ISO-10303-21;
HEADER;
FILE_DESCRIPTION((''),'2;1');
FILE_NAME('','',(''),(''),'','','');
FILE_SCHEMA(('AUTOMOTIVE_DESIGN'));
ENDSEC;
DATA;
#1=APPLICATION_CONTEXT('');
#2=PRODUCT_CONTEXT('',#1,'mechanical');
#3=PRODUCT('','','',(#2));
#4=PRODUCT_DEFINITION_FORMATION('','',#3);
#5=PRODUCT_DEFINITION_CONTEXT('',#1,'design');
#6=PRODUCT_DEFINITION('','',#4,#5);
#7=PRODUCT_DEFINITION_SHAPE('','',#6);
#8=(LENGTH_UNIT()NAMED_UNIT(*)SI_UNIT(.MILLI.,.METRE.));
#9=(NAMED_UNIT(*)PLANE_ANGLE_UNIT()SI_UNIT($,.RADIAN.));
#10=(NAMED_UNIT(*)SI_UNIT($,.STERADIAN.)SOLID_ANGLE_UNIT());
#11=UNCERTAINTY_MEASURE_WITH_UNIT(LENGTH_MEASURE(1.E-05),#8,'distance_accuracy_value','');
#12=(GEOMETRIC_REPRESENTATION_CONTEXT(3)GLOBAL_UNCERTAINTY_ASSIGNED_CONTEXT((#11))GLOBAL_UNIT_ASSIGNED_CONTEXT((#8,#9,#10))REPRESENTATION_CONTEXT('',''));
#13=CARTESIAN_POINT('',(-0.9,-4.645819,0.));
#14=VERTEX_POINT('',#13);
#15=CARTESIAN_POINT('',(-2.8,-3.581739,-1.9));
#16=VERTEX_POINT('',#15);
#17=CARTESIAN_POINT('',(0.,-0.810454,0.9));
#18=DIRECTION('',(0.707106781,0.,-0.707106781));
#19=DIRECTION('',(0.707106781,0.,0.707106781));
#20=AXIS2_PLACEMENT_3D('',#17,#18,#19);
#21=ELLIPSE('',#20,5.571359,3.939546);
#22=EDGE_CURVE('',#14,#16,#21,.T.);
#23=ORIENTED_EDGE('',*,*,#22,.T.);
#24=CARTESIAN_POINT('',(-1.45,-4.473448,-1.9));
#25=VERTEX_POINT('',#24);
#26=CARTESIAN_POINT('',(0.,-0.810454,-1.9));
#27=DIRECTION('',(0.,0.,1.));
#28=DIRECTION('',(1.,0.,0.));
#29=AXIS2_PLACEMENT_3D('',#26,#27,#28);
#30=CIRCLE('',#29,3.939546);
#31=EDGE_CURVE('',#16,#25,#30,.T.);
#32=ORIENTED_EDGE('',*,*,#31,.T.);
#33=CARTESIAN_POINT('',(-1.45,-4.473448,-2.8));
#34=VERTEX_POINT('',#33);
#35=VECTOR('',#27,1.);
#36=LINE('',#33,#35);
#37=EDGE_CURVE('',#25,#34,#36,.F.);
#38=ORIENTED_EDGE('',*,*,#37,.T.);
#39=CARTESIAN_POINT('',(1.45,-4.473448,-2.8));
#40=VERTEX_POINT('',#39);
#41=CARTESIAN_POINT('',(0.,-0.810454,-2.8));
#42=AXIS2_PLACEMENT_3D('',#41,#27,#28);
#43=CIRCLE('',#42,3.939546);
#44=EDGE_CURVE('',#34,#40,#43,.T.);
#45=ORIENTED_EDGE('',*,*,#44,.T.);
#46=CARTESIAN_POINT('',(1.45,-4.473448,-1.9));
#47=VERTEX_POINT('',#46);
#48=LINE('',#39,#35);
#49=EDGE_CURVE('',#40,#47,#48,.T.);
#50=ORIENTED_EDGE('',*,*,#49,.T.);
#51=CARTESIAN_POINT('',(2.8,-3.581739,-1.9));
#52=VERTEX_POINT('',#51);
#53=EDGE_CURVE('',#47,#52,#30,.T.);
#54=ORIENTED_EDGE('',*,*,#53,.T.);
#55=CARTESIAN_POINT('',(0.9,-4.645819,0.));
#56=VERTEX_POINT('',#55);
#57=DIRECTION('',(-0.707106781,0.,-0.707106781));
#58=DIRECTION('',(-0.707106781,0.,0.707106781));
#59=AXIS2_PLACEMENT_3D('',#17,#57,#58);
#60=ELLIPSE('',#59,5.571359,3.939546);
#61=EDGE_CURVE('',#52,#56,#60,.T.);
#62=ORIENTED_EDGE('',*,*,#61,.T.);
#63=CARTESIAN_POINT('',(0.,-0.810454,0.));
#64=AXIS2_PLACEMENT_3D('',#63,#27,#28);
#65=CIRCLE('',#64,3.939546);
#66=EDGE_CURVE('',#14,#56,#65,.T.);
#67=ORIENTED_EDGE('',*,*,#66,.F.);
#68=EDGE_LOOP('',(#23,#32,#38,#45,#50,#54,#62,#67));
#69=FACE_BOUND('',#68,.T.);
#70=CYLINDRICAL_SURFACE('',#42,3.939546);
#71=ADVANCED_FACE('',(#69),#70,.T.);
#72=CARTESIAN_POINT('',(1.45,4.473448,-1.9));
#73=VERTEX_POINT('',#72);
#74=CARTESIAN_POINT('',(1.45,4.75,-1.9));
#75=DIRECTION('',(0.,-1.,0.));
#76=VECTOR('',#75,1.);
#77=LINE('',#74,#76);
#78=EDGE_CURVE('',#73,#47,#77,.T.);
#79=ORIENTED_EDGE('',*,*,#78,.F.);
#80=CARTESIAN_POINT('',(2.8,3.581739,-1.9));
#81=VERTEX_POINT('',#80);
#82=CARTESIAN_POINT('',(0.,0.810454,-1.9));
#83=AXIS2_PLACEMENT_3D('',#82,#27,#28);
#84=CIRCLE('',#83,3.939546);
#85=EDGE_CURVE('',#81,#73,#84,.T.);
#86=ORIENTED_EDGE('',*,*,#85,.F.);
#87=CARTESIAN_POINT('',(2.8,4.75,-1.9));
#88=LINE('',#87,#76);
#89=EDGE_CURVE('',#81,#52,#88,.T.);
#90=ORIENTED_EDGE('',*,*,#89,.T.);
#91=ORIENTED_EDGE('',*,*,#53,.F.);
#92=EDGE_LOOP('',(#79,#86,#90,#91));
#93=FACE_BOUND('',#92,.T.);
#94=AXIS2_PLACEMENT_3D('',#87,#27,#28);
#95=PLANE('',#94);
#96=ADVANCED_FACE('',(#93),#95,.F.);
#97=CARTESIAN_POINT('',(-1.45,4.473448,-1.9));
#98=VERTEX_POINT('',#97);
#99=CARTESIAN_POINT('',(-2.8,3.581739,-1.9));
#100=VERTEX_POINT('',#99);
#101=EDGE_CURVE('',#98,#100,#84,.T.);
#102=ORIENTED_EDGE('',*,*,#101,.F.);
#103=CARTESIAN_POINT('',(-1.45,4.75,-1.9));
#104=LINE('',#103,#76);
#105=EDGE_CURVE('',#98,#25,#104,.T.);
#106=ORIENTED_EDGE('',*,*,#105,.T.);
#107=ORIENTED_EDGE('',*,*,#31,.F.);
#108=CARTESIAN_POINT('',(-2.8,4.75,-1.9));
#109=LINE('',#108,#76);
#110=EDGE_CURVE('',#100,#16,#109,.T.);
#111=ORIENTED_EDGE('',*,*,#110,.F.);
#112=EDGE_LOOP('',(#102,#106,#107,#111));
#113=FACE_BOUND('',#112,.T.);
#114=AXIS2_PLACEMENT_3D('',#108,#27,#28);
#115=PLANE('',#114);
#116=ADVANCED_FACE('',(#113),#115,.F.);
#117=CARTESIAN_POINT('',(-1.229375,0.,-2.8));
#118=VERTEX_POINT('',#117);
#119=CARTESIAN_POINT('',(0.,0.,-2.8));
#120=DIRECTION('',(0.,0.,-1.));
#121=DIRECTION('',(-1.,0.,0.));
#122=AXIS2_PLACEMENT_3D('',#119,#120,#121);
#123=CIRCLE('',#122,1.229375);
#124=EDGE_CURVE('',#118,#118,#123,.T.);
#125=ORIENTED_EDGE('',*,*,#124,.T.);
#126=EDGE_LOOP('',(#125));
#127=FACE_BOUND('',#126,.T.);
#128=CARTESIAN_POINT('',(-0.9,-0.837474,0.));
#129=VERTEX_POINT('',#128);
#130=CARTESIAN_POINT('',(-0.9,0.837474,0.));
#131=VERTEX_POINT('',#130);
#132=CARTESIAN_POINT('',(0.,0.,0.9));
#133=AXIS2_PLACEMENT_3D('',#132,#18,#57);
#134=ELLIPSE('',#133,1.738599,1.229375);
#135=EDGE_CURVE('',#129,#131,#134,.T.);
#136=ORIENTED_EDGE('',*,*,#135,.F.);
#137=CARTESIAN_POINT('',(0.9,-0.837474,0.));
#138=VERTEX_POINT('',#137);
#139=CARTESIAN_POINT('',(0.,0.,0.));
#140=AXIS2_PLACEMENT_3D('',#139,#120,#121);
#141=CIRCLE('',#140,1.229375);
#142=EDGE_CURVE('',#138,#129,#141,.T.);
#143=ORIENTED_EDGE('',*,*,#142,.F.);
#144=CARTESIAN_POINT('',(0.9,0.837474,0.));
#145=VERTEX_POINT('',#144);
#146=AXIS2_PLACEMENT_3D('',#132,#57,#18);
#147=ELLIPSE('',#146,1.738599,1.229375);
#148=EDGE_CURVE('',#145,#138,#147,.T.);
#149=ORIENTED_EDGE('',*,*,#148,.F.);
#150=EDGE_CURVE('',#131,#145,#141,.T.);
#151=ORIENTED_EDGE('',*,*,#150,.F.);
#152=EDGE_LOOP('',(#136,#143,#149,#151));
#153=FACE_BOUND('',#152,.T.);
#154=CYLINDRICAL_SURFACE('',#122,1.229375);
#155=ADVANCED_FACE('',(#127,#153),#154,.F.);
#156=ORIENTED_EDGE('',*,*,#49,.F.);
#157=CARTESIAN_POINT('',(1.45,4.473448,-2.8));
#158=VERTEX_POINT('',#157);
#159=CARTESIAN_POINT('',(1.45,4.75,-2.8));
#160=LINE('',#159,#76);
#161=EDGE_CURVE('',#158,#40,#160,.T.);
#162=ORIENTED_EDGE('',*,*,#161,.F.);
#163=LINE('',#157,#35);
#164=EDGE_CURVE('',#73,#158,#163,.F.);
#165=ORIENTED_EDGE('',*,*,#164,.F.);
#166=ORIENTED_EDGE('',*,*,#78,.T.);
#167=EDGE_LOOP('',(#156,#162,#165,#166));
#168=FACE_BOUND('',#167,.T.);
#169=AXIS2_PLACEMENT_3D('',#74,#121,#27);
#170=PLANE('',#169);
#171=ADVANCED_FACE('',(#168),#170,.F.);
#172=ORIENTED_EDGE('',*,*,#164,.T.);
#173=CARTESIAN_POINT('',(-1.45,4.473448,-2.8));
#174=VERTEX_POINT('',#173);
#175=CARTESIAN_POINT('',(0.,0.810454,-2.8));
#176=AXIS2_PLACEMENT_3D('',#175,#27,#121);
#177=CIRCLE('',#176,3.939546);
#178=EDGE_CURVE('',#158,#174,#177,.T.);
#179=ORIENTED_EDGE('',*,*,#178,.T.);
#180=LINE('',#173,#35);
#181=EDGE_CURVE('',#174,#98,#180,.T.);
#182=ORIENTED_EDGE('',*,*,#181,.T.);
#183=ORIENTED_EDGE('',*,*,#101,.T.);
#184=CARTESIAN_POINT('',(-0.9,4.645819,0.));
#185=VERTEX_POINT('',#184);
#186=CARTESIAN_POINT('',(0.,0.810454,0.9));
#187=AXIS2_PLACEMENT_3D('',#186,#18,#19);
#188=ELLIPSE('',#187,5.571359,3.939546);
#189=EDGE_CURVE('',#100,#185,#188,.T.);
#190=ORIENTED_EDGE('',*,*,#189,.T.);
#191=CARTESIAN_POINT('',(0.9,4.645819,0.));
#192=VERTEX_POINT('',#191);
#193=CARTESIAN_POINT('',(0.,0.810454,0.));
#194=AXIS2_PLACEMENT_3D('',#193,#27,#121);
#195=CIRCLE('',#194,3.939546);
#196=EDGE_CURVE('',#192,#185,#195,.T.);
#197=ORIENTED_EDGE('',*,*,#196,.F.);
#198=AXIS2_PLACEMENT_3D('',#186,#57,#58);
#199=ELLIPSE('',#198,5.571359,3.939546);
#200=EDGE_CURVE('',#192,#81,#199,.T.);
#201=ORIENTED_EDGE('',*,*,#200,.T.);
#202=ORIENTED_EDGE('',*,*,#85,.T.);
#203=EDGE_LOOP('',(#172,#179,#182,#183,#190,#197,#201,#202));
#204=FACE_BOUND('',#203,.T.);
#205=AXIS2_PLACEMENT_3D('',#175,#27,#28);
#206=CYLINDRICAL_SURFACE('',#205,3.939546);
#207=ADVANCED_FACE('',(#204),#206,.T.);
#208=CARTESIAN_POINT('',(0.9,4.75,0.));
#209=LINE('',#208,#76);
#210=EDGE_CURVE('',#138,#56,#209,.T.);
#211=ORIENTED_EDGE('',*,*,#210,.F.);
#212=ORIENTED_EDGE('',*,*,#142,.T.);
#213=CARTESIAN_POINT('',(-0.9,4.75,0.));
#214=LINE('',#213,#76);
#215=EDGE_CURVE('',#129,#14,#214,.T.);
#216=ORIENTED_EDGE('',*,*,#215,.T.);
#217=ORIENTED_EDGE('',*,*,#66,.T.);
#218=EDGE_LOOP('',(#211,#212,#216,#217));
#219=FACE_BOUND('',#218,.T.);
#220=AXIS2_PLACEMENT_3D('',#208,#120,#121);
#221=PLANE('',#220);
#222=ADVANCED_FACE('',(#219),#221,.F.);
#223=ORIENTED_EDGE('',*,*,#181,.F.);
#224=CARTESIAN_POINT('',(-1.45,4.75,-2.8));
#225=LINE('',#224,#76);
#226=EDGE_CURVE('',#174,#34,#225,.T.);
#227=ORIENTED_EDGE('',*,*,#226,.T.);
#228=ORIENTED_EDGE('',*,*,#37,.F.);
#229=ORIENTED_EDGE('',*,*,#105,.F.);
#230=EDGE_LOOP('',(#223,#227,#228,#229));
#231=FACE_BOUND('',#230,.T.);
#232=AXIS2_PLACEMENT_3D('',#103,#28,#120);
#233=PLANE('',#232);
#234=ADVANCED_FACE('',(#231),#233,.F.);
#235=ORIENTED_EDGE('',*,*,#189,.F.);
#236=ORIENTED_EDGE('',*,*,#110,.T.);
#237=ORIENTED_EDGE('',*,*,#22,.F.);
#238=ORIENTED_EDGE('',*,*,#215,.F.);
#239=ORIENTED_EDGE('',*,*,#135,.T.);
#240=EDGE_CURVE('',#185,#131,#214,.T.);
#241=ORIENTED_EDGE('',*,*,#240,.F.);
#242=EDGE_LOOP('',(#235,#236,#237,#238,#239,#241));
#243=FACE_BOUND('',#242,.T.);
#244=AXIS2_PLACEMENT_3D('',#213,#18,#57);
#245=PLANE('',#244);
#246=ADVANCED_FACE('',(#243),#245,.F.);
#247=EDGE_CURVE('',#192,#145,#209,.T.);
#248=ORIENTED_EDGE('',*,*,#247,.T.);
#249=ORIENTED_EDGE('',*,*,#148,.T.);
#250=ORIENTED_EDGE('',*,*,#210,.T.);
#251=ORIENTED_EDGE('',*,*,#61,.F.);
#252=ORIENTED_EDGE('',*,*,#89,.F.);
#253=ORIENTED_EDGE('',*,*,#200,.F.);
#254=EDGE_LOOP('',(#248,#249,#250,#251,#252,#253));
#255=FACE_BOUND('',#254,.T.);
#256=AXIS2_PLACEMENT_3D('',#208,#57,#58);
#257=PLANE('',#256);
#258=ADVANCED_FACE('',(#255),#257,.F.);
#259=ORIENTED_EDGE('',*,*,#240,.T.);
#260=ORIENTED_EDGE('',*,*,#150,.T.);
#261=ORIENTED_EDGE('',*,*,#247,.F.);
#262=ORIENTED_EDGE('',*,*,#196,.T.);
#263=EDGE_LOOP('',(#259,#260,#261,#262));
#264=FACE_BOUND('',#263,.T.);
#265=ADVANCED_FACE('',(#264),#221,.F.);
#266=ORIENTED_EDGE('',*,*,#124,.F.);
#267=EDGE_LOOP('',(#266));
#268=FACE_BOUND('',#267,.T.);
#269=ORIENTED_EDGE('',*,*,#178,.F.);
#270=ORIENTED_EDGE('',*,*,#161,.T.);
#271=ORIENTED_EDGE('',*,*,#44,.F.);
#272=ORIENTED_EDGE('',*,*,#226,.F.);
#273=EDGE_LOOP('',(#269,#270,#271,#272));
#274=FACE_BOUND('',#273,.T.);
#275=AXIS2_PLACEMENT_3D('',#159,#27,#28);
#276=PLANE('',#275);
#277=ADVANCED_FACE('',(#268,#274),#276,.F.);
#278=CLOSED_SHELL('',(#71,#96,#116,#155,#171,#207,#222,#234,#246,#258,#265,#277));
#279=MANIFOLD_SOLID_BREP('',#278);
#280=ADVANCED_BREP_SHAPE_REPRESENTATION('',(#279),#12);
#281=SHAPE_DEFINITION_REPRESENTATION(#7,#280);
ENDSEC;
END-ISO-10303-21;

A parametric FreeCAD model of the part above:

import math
import FreeCAD as App
import Part
import Sketcher
Q = App.Units.Quantity


def add_polygon(sketch, points):
    """Adds a closed chain of lines whose ends are joined by coincident constraints."""
    first, n = sketch.GeometryCount, len(points)
    for a, b in zip(points, points[1:] + points[:1]):
        sketch.addGeometry(Part.LineSegment(App.Vector(*a, 0), App.Vector(*b, 0)), False)
    for i in range(n):
        sketch.addConstraint(Sketcher.Constraint("Coincident", first + i, 2, first + (i + 1) % n, 1))

doc = App.newDocument("Part")
body = doc.addObject("PartDesign::Body", "Body")

sketch1 = body.newObject("Sketcher::SketchObject", "Sketch")
sketch1.AttachmentSupport = (doc.getObject("XZ_Plane"), [""])
sketch1.MapMode = "FlatFace"
add_polygon(sketch1, [(0.9, 0), (2.8, -1.9), (1.4, -1.9), (1.4, -2.8), (-1.4, -2.8), (-1.4, -1.9), (-2.8, -1.9), (-0.9, 0)])
sketch1.addConstraint([
    Sketcher.Constraint("Horizontal", 1),
    Sketcher.Constraint("Vertical", 2),
    Sketcher.Constraint("Horizontal", 3),
    Sketcher.Constraint("Vertical", 4),
    Sketcher.Constraint("Horizontal", 5),
    Sketcher.Constraint("Horizontal", 7),
    Sketcher.Constraint("Symmetric", 6, 2, 7, 2, -1, 1),
    Sketcher.Constraint("Symmetric", 1, 2, 4, 2, -2),
    Sketcher.Constraint("Perpendicular", 0, 6),
    Sketcher.Constraint("Equal", 1, 5),
    Sketcher.Constraint("DistanceX", 3, 2, 3, 1, Q("2.9 mm")),
    Sketcher.Constraint("DistanceX", 7, 1, 7, 2, Q("1.8 mm")),
    Sketcher.Constraint("DistanceY", 2, 2, 2, 1, Q("0.9 mm")),
    Sketcher.Constraint("DistanceX", 1, 2, 1, 1, Q("1.35 mm")),
])
pad1 = body.newObject("PartDesign::Pad", "Pad")
pad1.Profile = sketch1
pad1.Length = 9.5
pad1.Midplane = True

sketch2 = body.newObject("Sketcher::SketchObject", "Sketch001")
sketch2.AttachmentSupport = (doc.getObject("XY_Plane"), [""])
sketch2.MapMode = "FlatFace"
add_polygon(sketch2, [(-4.9, 6.9), (-4.9, -6.9), (4.9, -6.9), (4.9, 6.9)])
sketch2.addGeometry(Part.ArcOfCircle(Part.Circle(App.Vector(0, -0.8, 0), App.Vector(0, 0, 1), 3.9), math.radians(-135), math.radians(-45)), False)
sketch2.addGeometry(Part.LineSegment(App.Vector(-2.8, -3.6, 0), App.Vector(-2.8, 3.6, 0)), False)
sketch2.addGeometry(Part.ArcOfCircle(Part.Circle(App.Vector(0, 0.8, 0), App.Vector(0, 0, 1), 3.9), math.radians(45), math.radians(135)), False)
sketch2.addGeometry(Part.LineSegment(App.Vector(2.8, 3.6, 0), App.Vector(2.8, -3.6, 0)), False)
sketch2.addConstraint([
    Sketcher.Constraint("Coincident", 4, 1, 5, 1),
    Sketcher.Constraint("Coincident", 5, 2, 6, 2),
    Sketcher.Constraint("Coincident", 6, 1, 7, 1),
    Sketcher.Constraint("Coincident", 7, 2, 4, 2),
    Sketcher.Constraint("Vertical", 0),
    Sketcher.Constraint("Horizontal", 1),
    Sketcher.Constraint("Vertical", 2),
    Sketcher.Constraint("Horizontal", 3),
    Sketcher.Constraint("Vertical", 5),
    Sketcher.Constraint("Vertical", 7),
    Sketcher.Constraint("Equal", 4, 6),
    Sketcher.Constraint("Symmetric", 4, 3, 6, 3, -1, 1),
    Sketcher.Constraint("Symmetric", 0, 2, 2, 2, -1, 1),
    Sketcher.Constraint("Symmetric", 5, 2, 6, 1, -2),
    Sketcher.Constraint("DistanceX", 4, 1, -1, 1, Q("2.8 mm")),
    Sketcher.Constraint("DistanceX", 1, 1, 1, 2, Q("9.876 mm")),
    Sketcher.Constraint("DistanceY", 0, 2, 0, 1, Q("13.776 mm")),
    Sketcher.Constraint("Radius", 4, Q("3.939546 mm")),
    Sketcher.Constraint("DistanceY", 5, 1, 5, 2, Q("7.163479 mm")),
])
pocket1 = body.newObject("PartDesign::Pocket", "Pocket")
pocket1.Profile = sketch2
pocket1.Type = "ThroughAll"

sketch3 = body.newObject("Sketcher::SketchObject", "Sketch002")
sketch3.AttachmentSupport = (doc.getObject("XY_Plane"), [""])
sketch3.MapMode = "FlatFace"
sketch3.AttachmentOffset = App.Placement(App.Vector(0, 0, -2.8), App.Rotation())
sketch3.addGeometry(Part.Circle(App.Vector(0, 0, 0), App.Vector(0, 0, 1), 1.2), False)
sketch3.addConstraint([
    Sketcher.Constraint("Coincident", 0, 3, -1, 1),
    Sketcher.Constraint("Diameter", 0, Q("2.45875 mm")),
])
doc.recompute()
hole = body.newObject("PartDesign::Hole", "Hole")
hole.Profile = sketch3
hole.ThreadType = "None"
hole.Diameter = 2.45875
hole.DepthType = "ThroughAll"
hole.Reversed = True

doc.recompute()
